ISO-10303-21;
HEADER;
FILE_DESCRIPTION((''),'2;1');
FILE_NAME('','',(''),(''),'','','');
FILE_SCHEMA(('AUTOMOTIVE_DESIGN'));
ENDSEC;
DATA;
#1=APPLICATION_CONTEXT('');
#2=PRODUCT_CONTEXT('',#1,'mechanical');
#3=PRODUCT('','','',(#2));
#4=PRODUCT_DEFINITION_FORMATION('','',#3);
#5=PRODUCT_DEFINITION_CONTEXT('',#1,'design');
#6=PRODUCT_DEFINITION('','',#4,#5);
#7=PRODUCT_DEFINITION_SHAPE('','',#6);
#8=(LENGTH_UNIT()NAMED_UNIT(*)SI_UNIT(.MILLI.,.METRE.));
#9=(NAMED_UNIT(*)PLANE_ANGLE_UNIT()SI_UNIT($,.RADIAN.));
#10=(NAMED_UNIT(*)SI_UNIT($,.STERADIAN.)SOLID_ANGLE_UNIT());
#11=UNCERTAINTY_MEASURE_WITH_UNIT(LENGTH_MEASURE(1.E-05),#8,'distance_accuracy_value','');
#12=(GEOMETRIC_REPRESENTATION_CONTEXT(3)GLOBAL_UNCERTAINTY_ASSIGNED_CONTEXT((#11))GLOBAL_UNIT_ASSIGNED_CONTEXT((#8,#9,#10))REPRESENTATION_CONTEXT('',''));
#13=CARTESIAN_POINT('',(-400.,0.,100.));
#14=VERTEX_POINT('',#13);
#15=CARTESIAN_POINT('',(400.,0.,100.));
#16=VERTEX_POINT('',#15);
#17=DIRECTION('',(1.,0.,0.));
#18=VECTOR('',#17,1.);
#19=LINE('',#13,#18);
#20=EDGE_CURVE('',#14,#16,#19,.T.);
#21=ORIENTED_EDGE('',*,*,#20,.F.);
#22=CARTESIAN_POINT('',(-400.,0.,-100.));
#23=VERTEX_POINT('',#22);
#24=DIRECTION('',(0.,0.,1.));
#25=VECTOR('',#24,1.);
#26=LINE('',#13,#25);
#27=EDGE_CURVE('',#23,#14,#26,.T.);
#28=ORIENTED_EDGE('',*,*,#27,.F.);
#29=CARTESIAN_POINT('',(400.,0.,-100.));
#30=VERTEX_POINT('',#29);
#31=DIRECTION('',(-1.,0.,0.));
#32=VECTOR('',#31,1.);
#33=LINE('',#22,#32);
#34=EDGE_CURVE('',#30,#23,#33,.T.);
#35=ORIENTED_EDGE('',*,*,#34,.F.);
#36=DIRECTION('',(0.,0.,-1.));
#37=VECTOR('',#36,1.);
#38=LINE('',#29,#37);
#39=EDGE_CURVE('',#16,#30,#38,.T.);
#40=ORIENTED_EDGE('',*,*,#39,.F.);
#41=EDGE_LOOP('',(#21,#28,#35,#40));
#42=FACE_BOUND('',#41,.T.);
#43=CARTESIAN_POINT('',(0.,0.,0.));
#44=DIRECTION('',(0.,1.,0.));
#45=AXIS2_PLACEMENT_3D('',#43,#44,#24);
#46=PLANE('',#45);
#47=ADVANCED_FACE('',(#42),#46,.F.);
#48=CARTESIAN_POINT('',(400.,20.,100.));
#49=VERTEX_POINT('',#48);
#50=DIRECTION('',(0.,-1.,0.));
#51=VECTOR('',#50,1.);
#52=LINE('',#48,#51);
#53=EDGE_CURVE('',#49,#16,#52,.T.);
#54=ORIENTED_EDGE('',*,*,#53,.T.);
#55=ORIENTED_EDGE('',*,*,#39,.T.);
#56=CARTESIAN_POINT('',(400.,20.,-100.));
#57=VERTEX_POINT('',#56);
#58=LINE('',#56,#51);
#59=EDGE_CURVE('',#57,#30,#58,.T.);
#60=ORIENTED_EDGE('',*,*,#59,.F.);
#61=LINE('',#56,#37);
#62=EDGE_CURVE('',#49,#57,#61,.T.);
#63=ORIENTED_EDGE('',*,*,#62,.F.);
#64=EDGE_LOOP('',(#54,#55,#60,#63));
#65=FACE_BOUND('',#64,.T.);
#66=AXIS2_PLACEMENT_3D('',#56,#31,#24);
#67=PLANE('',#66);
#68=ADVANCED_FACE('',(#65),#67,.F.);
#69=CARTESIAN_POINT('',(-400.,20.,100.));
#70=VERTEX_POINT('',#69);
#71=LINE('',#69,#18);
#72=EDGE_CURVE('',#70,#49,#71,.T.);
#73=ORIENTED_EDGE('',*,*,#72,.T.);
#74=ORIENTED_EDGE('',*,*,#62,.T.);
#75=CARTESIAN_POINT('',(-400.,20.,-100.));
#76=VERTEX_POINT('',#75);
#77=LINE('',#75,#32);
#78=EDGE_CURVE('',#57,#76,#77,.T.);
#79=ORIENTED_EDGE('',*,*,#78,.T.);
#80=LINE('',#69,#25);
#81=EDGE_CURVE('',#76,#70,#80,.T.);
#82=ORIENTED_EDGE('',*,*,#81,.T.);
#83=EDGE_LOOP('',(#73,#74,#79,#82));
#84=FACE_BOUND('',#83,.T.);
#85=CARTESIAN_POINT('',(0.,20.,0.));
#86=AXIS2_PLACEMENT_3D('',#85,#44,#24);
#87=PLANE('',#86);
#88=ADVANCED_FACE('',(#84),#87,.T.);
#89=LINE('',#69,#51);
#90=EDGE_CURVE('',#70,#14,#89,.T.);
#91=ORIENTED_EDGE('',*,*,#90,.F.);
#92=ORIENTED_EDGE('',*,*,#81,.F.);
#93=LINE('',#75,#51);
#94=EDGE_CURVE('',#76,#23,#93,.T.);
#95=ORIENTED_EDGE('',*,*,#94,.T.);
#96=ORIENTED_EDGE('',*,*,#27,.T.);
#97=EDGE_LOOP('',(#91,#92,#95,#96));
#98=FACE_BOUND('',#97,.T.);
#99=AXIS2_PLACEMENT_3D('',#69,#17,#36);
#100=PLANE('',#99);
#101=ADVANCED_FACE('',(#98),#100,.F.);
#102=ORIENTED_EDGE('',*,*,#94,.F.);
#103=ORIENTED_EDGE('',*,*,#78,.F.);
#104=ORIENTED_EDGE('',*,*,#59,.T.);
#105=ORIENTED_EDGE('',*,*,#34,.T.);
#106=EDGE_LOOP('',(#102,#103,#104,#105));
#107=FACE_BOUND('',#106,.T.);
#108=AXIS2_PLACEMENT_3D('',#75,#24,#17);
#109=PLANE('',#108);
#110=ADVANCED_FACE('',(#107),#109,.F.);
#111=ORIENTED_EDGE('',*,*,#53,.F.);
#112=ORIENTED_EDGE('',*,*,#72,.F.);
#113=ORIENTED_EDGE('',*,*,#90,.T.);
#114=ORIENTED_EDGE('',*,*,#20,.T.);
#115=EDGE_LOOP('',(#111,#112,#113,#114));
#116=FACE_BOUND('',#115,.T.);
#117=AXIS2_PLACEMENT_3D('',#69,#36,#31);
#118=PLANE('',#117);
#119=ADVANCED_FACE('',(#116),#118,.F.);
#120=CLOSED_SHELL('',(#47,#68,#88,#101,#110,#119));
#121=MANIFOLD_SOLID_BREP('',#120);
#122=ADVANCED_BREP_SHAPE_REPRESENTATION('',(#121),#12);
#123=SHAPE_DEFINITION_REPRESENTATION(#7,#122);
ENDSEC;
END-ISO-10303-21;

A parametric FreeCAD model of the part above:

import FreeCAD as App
import Part
import Sketcher
Q = App.Units.Quantity


def add_polygon(sketch, points):
    """Adds a closed chain of lines whose ends are joined by coincident constraints."""
    first, n = sketch.GeometryCount, len(points)
    for a, b in zip(points, points[1:] + points[:1]):
        sketch.addGeometry(Part.LineSegment(App.Vector(*a, 0), App.Vector(*b, 0)), False)
    for i in range(n):
        sketch.addConstraint(Sketcher.Constraint("Coincident", first + i, 2, first + (i + 1) % n, 1))

doc = App.newDocument("Part")
params = doc.addObject("Spreadsheet::Sheet", "Params")
for row, (alias, value) in enumerate([
    ("sketch1_width", "800 mm"),
    ("sketch1_height", "200 mm"),
    ("pad1_length", "20 mm"),
], start=1):
    params.set(f"A{row}", alias)
    params.set(f"B{row}", "=" + value)
    params.setAlias(f"B{row}", alias)

body = doc.addObject("PartDesign::Body", "Body")

# Sketch on XZ plane
sketch1 = body.newObject("Sketcher::SketchObject", "Sketch")
sketch1.AttachmentSupport = (doc.getObject("XZ_Plane"), [""])
sketch1.MapMode = "FlatFace"
add_polygon(sketch1, [(-400, -100), (-400, 100), (400, 100), (400, -100)])  # lines 0-3
sketch1.addConstraint([
    Sketcher.Constraint("Vertical", 0),
    Sketcher.Constraint("Horizontal", 1),
    Sketcher.Constraint("Vertical", 2),
    Sketcher.Constraint("Horizontal", 3),
    Sketcher.Constraint("Symmetric", 0, 2, 2, 2, -1, 1),
    Sketcher.Constraint("DistanceX", 1, 1, 1, 2, Q("800 mm")),
    Sketcher.Constraint("DistanceY", 0, 1, 0, 2, Q("200 mm")),
])
sketch1.setExpression("Constraints[9]", "Params.sketch1_width")
sketch1.setExpression("Constraints[10]", "Params.sketch1_height")
pad1 = body.newObject("PartDesign::Pad", "Pad")
pad1.Profile = sketch1
pad1.setExpression("Length", "Params.pad1_length")
pad1.Reversed = True

doc.recompute()
